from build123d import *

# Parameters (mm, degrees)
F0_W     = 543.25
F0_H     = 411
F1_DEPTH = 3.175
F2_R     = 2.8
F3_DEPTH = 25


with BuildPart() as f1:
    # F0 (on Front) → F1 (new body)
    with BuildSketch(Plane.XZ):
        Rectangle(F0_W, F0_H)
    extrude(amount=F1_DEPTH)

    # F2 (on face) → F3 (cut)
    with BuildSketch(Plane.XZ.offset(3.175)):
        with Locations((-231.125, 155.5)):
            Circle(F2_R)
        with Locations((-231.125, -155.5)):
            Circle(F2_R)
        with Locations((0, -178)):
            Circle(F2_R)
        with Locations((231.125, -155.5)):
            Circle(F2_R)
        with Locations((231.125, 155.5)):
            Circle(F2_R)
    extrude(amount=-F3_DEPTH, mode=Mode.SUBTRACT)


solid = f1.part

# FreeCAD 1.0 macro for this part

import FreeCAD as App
import Part
import Sketcher


def add_polygon(sketch, points):
    """Adds a closed chain of lines whose ends are joined by coincident constraints."""
    first, n = sketch.GeometryCount, len(points)
    for a, b in zip(points, points[1:] + points[:1]):
        sketch.addGeometry(Part.LineSegment(App.Vector(*a, 0), App.Vector(*b, 0)), False)
    for i in range(n):
        sketch.addConstraint(Sketcher.Constraint("Coincident", first + i, 2, first + (i + 1) % n, 1))

doc = App.newDocument("Part")
body = doc.addObject("PartDesign::Body", "Body")

# Sketch on XZ plane
sketch1 = body.newObject("Sketcher::SketchObject", "Sketch")
sketch1.AttachmentSupport = (doc.getObject("XZ_Plane"), [""])
sketch1.MapMode = "FlatFace"
add_polygon(sketch1, [(-272, 206), (-272, -206), (272, -206), (272, 206)])  # lines 0-3
sketch1.addConstraint(Sketcher.Constraint("Vertical", 0))
sketch1.addConstraint(Sketcher.Constraint("Horizontal", 1))
sketch1.addConstraint(Sketcher.Constraint("Vertical", 2))
sketch1.addConstraint(Sketcher.Constraint("Horizontal", 3))
sketch1.addConstraint(Sketcher.Constraint("Symmetric", 0, 2, 2, 2, -1, 1))
sketch1.addConstraint(Sketcher.Constraint("DistanceY", 0, 2, 0, 1, 411.0))
sketch1.addConstraint(Sketcher.Constraint("DistanceX", 1, 1, 1, 2, 543.25))
pad1 = body.newObject("PartDesign::Pad", "Pad")
pad1.Profile = sketch1
pad1.Length = 3.175

# Sketch on XZ plane
sketch2 = body.newObject("Sketcher::SketchObject", "Sketch001")
sketch2.AttachmentSupport = (doc.getObject("XZ_Plane"), [""])
sketch2.MapMode = "FlatFace"
sketch2.AttachmentOffset = App.Placement(App.Vector(0, 0, 3.175), App.Rotation())
sketch2.addGeometry(Part.Circle(App.Vector(-231.1, 155.5, 0), App.Vector(0, 0, 1), 2.8), False)
sketch2.addGeometry(Part.Circle(App.Vector(-231.1, -155.5, 0), App.Vector(0, 0, 1), 2.8), False)
sketch2.addGeometry(Part.Circle(App.Vector(0, -178, 0), App.Vector(0, 0, 1), 2.8), False)
sketch2.addGeometry(Part.Circle(App.Vector(231.1, -155.5, 0), App.Vector(0, 0, 1), 2.8), False)
sketch2.addGeometry(Part.Circle(App.Vector(231.1, 155.5, 0), App.Vector(0, 0, 1), 2.8), False)
sketch2.addConstraint(Sketcher.Constraint("Equal", 0, 1))
sketch2.addConstraint(Sketcher.Constraint("Equal", 1, 2))
sketch2.addConstraint(Sketcher.Constraint("Equal", 2, 3))
sketch2.addConstraint(Sketcher.Constraint("Equal", 3, 4))
sketch2.addConstraint(Sketcher.Constraint("Symmetric", 0, 3, 3, 3, -1, 1))
sketch2.addConstraint(Sketcher.Constraint("Symmetric", 1, 3, 4, 3, -1, 1))
sketch2.addConstraint(Sketcher.Constraint("Symmetric", 1, 3, 3, 3, -2))
sketch2.addConstraint(Sketcher.Constraint("PointOnObject", 2, 3, -2))
sketch2.addConstraint(Sketcher.Constraint("Diameter", 0, 5.6))
sketch2.addConstraint(Sketcher.Constraint("DistanceY", 2, 3, -1, 1, 178.0))
sketch2.addConstraint(Sketcher.Constraint("DistanceY", 1, 3, 0, 3, 311.0))
sketch2.addConstraint(Sketcher.Constraint("DistanceX", 1, 3, 3, 3, 462.25))
pocket1 = body.newObject("PartDesign::Pocket", "Pocket")
pocket1.Profile = sketch2
pocket1.Length = 25

doc.recompute()
